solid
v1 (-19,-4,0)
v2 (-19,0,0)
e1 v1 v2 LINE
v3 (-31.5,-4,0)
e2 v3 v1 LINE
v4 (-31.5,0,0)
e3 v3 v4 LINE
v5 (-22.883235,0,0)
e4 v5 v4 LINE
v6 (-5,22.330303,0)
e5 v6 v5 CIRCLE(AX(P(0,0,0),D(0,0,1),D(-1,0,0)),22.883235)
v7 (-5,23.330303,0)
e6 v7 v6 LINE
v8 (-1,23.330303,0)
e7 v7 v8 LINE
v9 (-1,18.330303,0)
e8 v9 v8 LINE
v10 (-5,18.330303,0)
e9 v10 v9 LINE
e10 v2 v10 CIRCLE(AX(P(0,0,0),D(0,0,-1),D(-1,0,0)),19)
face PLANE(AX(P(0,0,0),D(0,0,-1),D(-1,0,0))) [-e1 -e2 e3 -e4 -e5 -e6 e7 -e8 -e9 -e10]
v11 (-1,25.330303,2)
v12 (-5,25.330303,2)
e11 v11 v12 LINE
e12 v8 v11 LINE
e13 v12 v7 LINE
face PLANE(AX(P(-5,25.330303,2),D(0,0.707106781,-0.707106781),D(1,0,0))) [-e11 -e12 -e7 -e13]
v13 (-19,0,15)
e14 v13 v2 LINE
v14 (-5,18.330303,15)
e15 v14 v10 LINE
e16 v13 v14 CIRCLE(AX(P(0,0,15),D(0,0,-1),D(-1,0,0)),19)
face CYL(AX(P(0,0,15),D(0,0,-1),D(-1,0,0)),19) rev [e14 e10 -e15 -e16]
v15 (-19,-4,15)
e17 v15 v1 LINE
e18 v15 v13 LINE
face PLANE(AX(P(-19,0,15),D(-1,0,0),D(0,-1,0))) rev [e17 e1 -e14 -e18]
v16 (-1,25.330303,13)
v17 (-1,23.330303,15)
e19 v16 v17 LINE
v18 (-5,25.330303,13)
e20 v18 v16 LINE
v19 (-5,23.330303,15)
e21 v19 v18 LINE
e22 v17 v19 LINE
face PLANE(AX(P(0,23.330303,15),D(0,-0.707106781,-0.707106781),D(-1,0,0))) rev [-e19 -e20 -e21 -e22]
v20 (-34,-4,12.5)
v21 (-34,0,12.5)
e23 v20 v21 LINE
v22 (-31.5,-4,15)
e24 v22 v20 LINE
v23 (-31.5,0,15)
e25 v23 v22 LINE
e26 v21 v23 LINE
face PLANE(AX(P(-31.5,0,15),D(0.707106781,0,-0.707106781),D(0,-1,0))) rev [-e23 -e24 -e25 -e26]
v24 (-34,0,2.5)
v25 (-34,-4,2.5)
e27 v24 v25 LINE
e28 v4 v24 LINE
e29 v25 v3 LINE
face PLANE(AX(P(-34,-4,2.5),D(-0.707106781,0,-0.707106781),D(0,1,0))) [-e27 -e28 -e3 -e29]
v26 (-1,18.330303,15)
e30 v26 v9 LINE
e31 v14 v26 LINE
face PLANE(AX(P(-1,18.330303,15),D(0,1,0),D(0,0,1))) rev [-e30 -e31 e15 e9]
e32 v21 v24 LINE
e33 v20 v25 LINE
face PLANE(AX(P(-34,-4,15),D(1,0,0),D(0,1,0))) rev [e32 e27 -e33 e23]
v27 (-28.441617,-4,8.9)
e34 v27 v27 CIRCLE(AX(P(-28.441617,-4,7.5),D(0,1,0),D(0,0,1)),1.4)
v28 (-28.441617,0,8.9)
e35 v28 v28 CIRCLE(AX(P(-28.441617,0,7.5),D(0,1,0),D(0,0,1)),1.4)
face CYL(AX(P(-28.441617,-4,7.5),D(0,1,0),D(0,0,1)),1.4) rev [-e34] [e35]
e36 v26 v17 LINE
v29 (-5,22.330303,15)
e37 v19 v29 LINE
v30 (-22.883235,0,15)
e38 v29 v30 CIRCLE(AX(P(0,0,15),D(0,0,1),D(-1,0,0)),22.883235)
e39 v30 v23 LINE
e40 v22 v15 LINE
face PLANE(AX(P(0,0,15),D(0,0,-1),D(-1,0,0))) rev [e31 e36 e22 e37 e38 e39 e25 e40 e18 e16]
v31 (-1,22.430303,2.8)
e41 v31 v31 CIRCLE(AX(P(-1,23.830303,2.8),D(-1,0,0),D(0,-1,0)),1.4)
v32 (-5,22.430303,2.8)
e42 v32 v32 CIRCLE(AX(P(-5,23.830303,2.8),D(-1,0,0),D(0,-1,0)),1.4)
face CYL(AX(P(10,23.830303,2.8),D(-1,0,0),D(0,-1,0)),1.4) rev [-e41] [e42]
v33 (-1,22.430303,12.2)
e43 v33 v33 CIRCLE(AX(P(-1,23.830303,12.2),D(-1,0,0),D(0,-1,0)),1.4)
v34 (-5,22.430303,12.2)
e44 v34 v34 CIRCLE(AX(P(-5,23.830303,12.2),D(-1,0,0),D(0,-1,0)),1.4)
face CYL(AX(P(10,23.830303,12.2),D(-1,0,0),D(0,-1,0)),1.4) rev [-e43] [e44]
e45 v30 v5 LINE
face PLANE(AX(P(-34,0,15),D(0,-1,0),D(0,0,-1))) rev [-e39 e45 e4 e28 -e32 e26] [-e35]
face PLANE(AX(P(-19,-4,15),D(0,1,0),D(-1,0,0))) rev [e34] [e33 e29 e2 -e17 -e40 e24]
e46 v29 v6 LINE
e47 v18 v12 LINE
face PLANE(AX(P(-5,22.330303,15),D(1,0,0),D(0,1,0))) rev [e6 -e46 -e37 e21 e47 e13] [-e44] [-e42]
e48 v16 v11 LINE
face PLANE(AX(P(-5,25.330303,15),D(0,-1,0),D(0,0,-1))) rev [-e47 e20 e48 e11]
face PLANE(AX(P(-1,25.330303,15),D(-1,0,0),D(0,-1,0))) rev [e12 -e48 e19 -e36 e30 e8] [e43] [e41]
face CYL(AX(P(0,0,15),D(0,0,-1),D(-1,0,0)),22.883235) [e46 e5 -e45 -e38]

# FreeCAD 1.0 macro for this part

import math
import FreeCAD as App
import Part
import Sketcher

V = App.Vector


def edges_at(feature, points):
    """Names of the edges that pass closest to the given points."""
    edges = feature.Shape.Edges
    near = lambda p: min(range(len(edges)), key=lambda i: edges[i].distToShape(Part.Vertex(*p))[0])
    return sorted({f"Edge{near(p) + 1}" for p in points})

doc = App.newDocument("Part")
body = doc.addObject("PartDesign::Body", "Body")

# Sketch on XY plane
sketch1 = body.newObject("Sketcher::SketchObject", "Sketch")
sketch1.AttachmentSupport = (doc.getObject("XY_Plane"), [""])
sketch1.MapMode = "FlatFace"
sketch1.addGeometry([
    Part.LineSegment(V(-19, -4, 0), V(-19, 0, 0)),  # 0
    Part.ArcOfCircle(Part.Circle(V(0, 0, 0), V(0, 0, 1), 19), math.radians(105), math.radians(180)),  # 1
    Part.LineSegment(V(-5, 18.3, 0), V(-1, 18.3, 0)),  # 2
    Part.LineSegment(V(-1, 18.3, 0), V(-1, 25.3, 0)),  # 3
    Part.LineSegment(V(-1, 25.3, 0), V(-5, 25.3, 0)),  # 4
    Part.LineSegment(V(-5, 25.3, 0), V(-5, 22.3, 0)),  # 5
    Part.ArcOfCircle(Part.Circle(V(0, 0, 0), V(0, 0, 1), 22.9), math.radians(103), math.radians(180)),  # 6
    Part.LineSegment(V(-22.9, 0, 0), V(-34, 0, 0)),  # 7
    Part.LineSegment(V(-34, 0, 0), V(-34, -4, 0)),  # 8
    Part.LineSegment(V(-34, -4, 0), V(-19, -4, 0)),  # 9
], False)
sketch1.addConstraint([
    Sketcher.Constraint("Tangent", 0, 2, 1, 2),
    Sketcher.Constraint("Coincident", 1, 1, 2, 1),
    Sketcher.Constraint("Coincident", 2, 2, 3, 1),
    Sketcher.Constraint("Coincident", 3, 2, 4, 1),
    Sketcher.Constraint("Coincident", 4, 2, 5, 1),
    Sketcher.Constraint("Coincident", 5, 2, 6, 1),
    Sketcher.Constraint("Coincident", 6, 2, 7, 1),
    Sketcher.Constraint("Coincident", 7, 2, 8, 1),
    Sketcher.Constraint("Coincident", 8, 2, 9, 1),
    Sketcher.Constraint("Coincident", 9, 2, 0, 1),
    Sketcher.Constraint("Vertical", 0),
    Sketcher.Constraint("Horizontal", 2),
    Sketcher.Constraint("Vertical", 3),
    Sketcher.Constraint("Horizontal", 4),
    Sketcher.Constraint("Vertical", 5),
    Sketcher.Constraint("Horizontal", 7),
    Sketcher.Constraint("Vertical", 8),
    Sketcher.Constraint("Horizontal", 9),
    Sketcher.Constraint("Coincident", 1, 3, -1, 1),
    Sketcher.Constraint("Coincident", 6, 3, -1, 1),
    Sketcher.Constraint("PointOnObject", 6, 2, -1),
    Sketcher.Constraint("Vertical", 1, 1, 4, 2),
    Sketcher.Constraint("Equal", 4, 0),
    Sketcher.Constraint("Radius", 1, 19.0),
    Sketcher.Constraint("DistanceX", 2, 1, 2, 2, 4.0),
    Sketcher.Constraint("DistanceX", 9, 1, 9, 2, 15.0),
    Sketcher.Constraint("DistanceY", 3, 1, 3, 2, 7.0),
    Sketcher.Constraint("DistanceY", 5, 2, 5, 1, 3.0),
    Sketcher.Constraint("DistanceX", 1, 1, -1, 1, 5.0),
])
pad1 = body.newObject("PartDesign::Pad", "Pad")
pad1.Profile = sketch1
pad1.Length = 15
doc.recompute()

chamfer = body.newObject("PartDesign::Chamfer", "Chamfer")
chamfer.Base = (pad1, edges_at(pad1, [(-34, -2, 0), (-34, -2, 15)]))
chamfer.Size = 2.5

# Sketch on YZ plane
sketch2 = body.newObject("Sketcher::SketchObject", "Sketch001")
sketch2.AttachmentSupport = (doc.getObject("YZ_Plane"), [""])
sketch2.MapMode = "FlatFace"
sketch2.AttachmentOffset = App.Placement(V(0, 0, -5), App.Rotation())
sketch2.addGeometry([
    Part.Circle(V(23.8, 2.8, 0), V(0, 0, 1), 1.4),
    Part.Circle(V(23.8, 12.2, 0), V(0, 0, 1), 1.4),
], False)
sketch2.addConstraint([
    Sketcher.Constraint("Equal", 0, 1),
    Sketcher.Constraint("Vertical", 0, 3, 1, 3),
    Sketcher.Constraint("Diameter", 0, 2.8),
    Sketcher.Constraint("DistanceY", -1, 1, 0, 3, 2.8),
    Sketcher.Constraint("DistanceY", -1, 1, 1, 3, 12.2),
    Sketcher.Constraint("DistanceX", -1, 1, 0, 3, 23.830303),
])
pocket1 = body.newObject("PartDesign::Pocket", "Pocket")
pocket1.Profile = sketch2
pocket1.Length = 15
pocket1.Reversed = True
doc.recompute()

chamfer2 = body.newObject("PartDesign::Chamfer", "Chamfer001")
chamfer2.Base = (pocket1, edges_at(pocket1, [(-3, 25.33, 0), (-3, 25.33, 15)]))
chamfer2.Size = 2

# Sketch on XZ plane
sketch3 = body.newObject("Sketcher::SketchObject", "Sketch002")
sketch3.AttachmentSupport = (doc.getObject("XZ_Plane"), [""])
sketch3.MapMode = "FlatFace"
sketch3.addGeometry(Part.Circle(V(-28.4, 7.5, 0), V(0, 0, 1), 1.4), False)
sketch3.addConstraint([
    Sketcher.Constraint("Diameter", 0, 2.8),
    Sketcher.Constraint("DistanceY", -1, 1, 0, 3, 7.5),
    Sketcher.Constraint("DistanceX", 0, 3, -1, 1, 28.441617),
])
pocket2 = body.newObject("PartDesign::Pocket", "Pocket001")
pocket2.Profile = sketch3
pocket2.Type = "ThroughAll"
pocket2.Reversed = True

doc.recompute()
